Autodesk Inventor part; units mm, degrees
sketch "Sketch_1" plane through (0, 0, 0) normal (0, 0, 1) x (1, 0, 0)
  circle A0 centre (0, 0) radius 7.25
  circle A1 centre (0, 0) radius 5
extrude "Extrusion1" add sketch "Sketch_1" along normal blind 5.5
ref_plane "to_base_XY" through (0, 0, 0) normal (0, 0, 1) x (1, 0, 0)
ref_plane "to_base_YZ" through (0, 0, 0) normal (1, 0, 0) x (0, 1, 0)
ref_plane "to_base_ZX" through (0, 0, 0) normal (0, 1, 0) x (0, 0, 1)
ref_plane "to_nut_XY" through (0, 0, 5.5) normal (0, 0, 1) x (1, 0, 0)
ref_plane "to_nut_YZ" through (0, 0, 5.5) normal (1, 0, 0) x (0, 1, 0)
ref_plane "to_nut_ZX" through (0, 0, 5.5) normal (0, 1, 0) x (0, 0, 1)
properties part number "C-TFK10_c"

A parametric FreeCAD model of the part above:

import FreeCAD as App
import Part
import Sketcher
from FreeCAD import Vector

doc = App.newDocument("Part")
body = doc.addObject("PartDesign::Body", "Body")

sketch1 = body.newObject("Sketcher::SketchObject", "Sketch")
sketch1.AttachmentSupport = (doc.getObject("XY_Plane"), [""])
sketch1.MapMode = "FlatFace"
sketch1.addGeometry([
    Part.Circle(Vector(0, 0, 0), Vector(0, 0, 1), 7.25),
    Part.Circle(Vector(0, 0, 0), Vector(0, 0, 1), 5),
], False)
sketch1.addConstraint([
    Sketcher.Constraint("Coincident", 0, 3, -1, 1),
    Sketcher.Constraint("Coincident", 1, 3, -1, 1),
    Sketcher.Constraint("Diameter", 1, 10.0),
    Sketcher.Constraint("Diameter", 0, 14.5),
])
pad1 = body.newObject("PartDesign::Pad", "Pad")
pad1.Profile = sketch1
pad1.Length = 5.5

doc.recompute()
